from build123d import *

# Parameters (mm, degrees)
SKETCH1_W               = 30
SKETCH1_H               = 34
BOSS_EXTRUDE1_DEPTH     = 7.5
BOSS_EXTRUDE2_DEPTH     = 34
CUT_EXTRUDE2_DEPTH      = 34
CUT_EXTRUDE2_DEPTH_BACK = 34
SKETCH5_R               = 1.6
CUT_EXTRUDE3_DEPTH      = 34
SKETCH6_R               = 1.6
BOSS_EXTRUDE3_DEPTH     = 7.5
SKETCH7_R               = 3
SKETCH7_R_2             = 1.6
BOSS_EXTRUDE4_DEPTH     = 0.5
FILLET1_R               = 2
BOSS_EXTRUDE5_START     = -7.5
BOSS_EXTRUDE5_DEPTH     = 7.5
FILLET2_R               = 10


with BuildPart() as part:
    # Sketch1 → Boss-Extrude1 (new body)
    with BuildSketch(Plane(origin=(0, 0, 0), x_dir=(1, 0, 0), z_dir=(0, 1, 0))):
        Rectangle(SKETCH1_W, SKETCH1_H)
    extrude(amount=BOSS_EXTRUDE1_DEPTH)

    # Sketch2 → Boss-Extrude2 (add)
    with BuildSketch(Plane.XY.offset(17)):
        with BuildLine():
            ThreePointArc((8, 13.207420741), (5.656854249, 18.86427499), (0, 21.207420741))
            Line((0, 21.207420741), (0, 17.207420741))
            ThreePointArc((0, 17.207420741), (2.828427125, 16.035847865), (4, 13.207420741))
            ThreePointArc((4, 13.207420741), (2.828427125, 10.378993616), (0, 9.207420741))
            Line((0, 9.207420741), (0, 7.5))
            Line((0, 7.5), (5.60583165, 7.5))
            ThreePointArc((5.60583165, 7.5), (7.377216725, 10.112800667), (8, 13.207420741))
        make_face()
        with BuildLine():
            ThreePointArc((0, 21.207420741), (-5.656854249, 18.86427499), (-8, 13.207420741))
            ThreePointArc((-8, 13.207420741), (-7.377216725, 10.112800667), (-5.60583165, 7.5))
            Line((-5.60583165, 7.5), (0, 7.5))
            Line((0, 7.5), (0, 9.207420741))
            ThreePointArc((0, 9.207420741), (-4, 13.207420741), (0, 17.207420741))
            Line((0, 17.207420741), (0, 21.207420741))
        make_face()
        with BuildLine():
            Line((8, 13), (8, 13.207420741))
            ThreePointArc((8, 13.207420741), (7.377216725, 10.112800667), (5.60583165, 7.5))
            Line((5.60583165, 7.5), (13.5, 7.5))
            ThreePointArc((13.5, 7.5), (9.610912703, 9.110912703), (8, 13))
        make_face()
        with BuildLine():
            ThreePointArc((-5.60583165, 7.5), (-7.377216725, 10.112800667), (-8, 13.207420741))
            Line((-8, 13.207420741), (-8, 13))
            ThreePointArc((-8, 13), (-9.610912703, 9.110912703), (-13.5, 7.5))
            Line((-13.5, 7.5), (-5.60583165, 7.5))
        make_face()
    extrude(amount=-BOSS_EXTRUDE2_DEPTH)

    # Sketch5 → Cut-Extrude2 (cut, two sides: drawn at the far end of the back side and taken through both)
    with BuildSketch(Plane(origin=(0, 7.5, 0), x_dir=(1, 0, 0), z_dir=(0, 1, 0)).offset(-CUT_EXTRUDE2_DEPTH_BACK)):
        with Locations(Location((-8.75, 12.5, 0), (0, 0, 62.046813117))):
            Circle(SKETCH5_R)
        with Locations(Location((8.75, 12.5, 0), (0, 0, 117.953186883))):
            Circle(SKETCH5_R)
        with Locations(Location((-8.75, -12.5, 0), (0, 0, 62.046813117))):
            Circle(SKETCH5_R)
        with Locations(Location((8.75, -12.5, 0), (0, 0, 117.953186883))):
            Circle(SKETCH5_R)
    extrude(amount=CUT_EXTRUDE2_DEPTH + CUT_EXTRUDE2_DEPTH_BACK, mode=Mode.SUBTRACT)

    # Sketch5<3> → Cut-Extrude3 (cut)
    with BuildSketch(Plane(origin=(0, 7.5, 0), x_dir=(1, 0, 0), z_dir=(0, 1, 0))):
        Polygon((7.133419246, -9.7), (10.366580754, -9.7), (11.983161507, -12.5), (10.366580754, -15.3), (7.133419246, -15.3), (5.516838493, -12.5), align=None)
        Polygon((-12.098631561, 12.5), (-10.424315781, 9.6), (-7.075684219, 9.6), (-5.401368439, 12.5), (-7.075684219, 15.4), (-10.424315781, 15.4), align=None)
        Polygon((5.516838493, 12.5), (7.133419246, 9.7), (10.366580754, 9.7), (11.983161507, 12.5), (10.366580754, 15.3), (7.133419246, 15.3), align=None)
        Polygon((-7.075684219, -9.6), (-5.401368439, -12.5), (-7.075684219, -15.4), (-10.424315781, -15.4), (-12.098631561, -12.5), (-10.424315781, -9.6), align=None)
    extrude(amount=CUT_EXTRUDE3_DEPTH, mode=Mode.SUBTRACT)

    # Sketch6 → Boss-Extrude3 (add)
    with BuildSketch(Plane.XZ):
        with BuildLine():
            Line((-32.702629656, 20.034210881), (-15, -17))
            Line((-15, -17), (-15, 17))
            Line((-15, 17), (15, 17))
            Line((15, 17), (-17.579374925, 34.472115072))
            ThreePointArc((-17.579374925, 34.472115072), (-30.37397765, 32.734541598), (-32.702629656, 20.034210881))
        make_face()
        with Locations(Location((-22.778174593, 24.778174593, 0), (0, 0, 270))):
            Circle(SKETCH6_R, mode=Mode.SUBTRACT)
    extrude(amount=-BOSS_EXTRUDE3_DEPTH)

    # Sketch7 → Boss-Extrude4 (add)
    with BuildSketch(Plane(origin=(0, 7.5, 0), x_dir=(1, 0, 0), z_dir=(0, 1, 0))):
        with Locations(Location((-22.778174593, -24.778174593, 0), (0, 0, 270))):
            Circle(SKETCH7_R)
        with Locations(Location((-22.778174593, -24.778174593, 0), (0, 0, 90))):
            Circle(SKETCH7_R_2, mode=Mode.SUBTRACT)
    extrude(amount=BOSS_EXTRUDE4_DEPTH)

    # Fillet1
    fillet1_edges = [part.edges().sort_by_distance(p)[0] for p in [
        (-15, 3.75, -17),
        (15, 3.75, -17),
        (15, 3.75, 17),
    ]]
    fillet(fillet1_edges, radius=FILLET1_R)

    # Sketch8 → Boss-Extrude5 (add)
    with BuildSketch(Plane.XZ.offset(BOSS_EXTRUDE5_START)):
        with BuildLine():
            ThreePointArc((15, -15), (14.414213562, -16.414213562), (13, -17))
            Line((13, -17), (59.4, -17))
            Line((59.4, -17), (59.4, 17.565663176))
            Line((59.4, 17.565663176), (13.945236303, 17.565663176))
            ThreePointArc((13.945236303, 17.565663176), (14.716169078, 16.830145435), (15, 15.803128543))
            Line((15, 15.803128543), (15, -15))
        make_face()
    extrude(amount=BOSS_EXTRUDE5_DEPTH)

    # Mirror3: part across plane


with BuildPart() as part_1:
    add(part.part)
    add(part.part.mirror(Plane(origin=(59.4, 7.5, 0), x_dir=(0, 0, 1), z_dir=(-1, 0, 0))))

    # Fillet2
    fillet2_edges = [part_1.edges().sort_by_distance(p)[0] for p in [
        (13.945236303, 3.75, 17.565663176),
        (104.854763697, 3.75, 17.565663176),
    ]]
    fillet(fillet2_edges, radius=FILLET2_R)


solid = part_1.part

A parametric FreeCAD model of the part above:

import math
import FreeCAD as App
import Part
import Sketcher

V = App.Vector
Q = App.Units.Quantity


def edges_at(feature, points):
    """Names of the edges that pass closest to the given points."""
    edges = feature.Shape.Edges
    near = lambda p: min(range(len(edges)), key=lambda i: edges[i].distToShape(Part.Vertex(*p))[0])
    return sorted({f"Edge{near(p) + 1}" for p in points})


def add_polygon(sketch, points):
    """Adds a closed chain of lines whose ends are joined by coincident constraints."""
    first, n = sketch.GeometryCount, len(points)
    for a, b in zip(points, points[1:] + points[:1]):
        sketch.addGeometry(Part.LineSegment(App.Vector(*a, 0), App.Vector(*b, 0)), False)
    for i in range(n):
        sketch.addConstraint(Sketcher.Constraint("Coincident", first + i, 2, first + (i + 1) % n, 1))

doc = App.newDocument("Part")
body = doc.addObject("PartDesign::Body", "Body")

# Sketch on XZ plane
sketch1 = body.newObject("Sketcher::SketchObject", "Sketch")
sketch1.AttachmentSupport = (doc.getObject("XZ_Plane"), [""])
sketch1.MapMode = "FlatFace"
add_polygon(sketch1, [(-15, -17), (-15, 17), (15, 17), (15, -17)])  # lines 0-3
sketch1.addConstraint([
    Sketcher.Constraint("Vertical", 0),
    Sketcher.Constraint("Horizontal", 1),
    Sketcher.Constraint("Vertical", 2),
    Sketcher.Constraint("Horizontal", 3),
    Sketcher.Constraint("Symmetric", 0, 2, 2, 2, -1, 1),
    Sketcher.Constraint("DistanceX", 1, 1, 1, 2, Q("30 mm")),
    Sketcher.Constraint("DistanceY", 0, 1, 0, 2, Q("34 mm")),
])
pad1 = body.newObject("PartDesign::Pad", "Pad")
pad1.Profile = sketch1
pad1.Length = 7.5
pad1.Reversed = True

# Sketch on XY plane
sketch2 = body.newObject("Sketcher::SketchObject", "Sketch001")
sketch2.AttachmentSupport = (doc.getObject("XY_Plane"), [""])
sketch2.MapMode = "FlatFace"
sketch2.AttachmentOffset = App.Placement(V(0, 0, 17), App.Rotation())
sketch2.addGeometry([
    Part.ArcOfCircle(Part.Circle(V(0, 13.21, 0), V(0, 0, 1), 8), math.radians(0), math.radians(90)),  # 0
    Part.ArcOfCircle(Part.Circle(V(0, 13.21, 0), V(0, 0, 1), 8), math.radians(90), math.radians(180)),  # 1
    Part.LineSegment(V(-8, 13.21, 0), V(-8, 13, 0)),  # 2
    Part.ArcOfCircle(Part.Circle(V(-13.5, 13, 0), V(0, 0, 1), 5.5), math.radians(-90), math.radians(0)),  # 3
    Part.LineSegment(V(-13.5, 7.5, 0), V(13.5, 7.5, 0)),  # 4
    Part.ArcOfCircle(Part.Circle(V(13.5, 13, 0), V(0, 0, 1), 5.5), math.radians(180), math.radians(270)),  # 5
    Part.LineSegment(V(8, 13, 0), V(8, 13.21, 0)),  # 6
    Part.ArcOfCircle(Part.Circle(V(0, 13.21, 0), V(0, 0, 1), 4), math.radians(0), math.radians(90)),  # 7
    Part.ArcOfCircle(Part.Circle(V(0, 13.21, 0), V(0, 0, 1), 4), math.radians(-90), math.radians(0)),  # 8
    Part.ArcOfCircle(Part.Circle(V(0, 13.21, 0), V(0, 0, 1), 4), math.radians(90), math.radians(270)),  # 9
], False)
sketch2.addConstraint([
    Sketcher.Constraint("Tangent", 0, 2, 1, 1),
    Sketcher.Constraint("Tangent", 1, 2, 2, 1),
    Sketcher.Constraint("Tangent", 2, 2, 3, 2),
    Sketcher.Constraint("Tangent", 3, 1, 4, 1),
    Sketcher.Constraint("Tangent", 4, 2, 5, 2),
    Sketcher.Constraint("Tangent", 5, 1, 6, 1),
    Sketcher.Constraint("Tangent", 6, 2, 0, 1),
    Sketcher.Constraint("Tangent", 7, 1, 8, 2),
    Sketcher.Constraint("Tangent", 8, 1, 9, 2),
    Sketcher.Constraint("Tangent", 9, 1, 7, 2),
    Sketcher.Constraint("Vertical", 2),
    Sketcher.Constraint("Horizontal", 4),
    Sketcher.Constraint("Vertical", 6),
    Sketcher.Constraint("Coincident", 7, 3, 0, 3),
    Sketcher.Constraint("Equal", 0, 1),
    Sketcher.Constraint("Equal", 3, 5),
    Sketcher.Constraint("PointOnObject", 0, 3, -2),
    Sketcher.Constraint("PointOnObject", 0, 2, -2),
    Sketcher.Constraint("PointOnObject", 8, 1, -2),
    Sketcher.Constraint("PointOnObject", 9, 1, -2),
    Sketcher.Constraint("Horizontal", 6, 2, 7, 1),
    Sketcher.Constraint("Radius", 0, Q("8 mm")),
    Sketcher.Constraint("Radius", 7, Q("4 mm")),
    Sketcher.Constraint("Radius", 3, Q("5.5 mm")),
    Sketcher.Constraint("DistanceY", -1, 1, 3, 3, Q("13 mm")),
    Sketcher.Constraint("DistanceY", 2, 2, 2, 1, Q("0.207421 mm")),
])
pad2 = body.newObject("PartDesign::Pad", "Pad001")
pad2.Profile = sketch2
pad2.Length = 34
pad2.Reversed = True

# Sketch on XZ plane
sketch3 = body.newObject("Sketcher::SketchObject", "Sketch002")
sketch3.AttachmentSupport = (doc.getObject("XZ_Plane"), [""])
sketch3.MapMode = "FlatFace"
sketch3.AttachmentOffset = App.Placement(V(0, 0, -7.5), App.Rotation())
sketch3.addGeometry([
    Part.Circle(V(-8.8, -12.5, 0), V(0, 0, 1), 1.6),
    Part.Circle(V(8.8, -12.5, 0), V(0, 0, 1), 1.6),
    Part.Circle(V(-8.8, 12.5, 0), V(0, 0, 1), 1.6),
    Part.Circle(V(8.8, 12.5, 0), V(0, 0, 1), 1.6),
], False)
sketch3.addConstraint([
    Sketcher.Constraint("Equal", 0, 1),
    Sketcher.Constraint("Equal", 1, 2),
    Sketcher.Constraint("Equal", 2, 3),
    Sketcher.Constraint("Symmetric", 1, 3, 2, 3, -1, 1),
    Sketcher.Constraint("Symmetric", 0, 3, 3, 3, -1, 1),
    Sketcher.Constraint("Symmetric", 0, 3, 1, 3, -2),
    Sketcher.Constraint("Diameter", 0, Q("3.2 mm")),
    Sketcher.Constraint("DistanceY", 0, 3, 2, 3, Q("25 mm")),
    Sketcher.Constraint("DistanceX", 0, 3, 1, 3, Q("17.5 mm")),
])
pocket1 = body.newObject("PartDesign::Pocket", "Pocket")
pocket1.Profile = sketch3
pocket1.Type = "ThroughAll"
pocket1.Midplane = True

# Sketch on XZ plane
sketch4 = body.newObject("Sketcher::SketchObject", "Sketch003")
sketch4.AttachmentSupport = (doc.getObject("XZ_Plane"), [""])
sketch4.MapMode = "FlatFace"
sketch4.AttachmentOffset = App.Placement(V(0, 0, -7.5), App.Rotation())
add_polygon(sketch4, [(10.4, 9.7), (7.1, 9.7), (5.5, 12.5), (7.1, 15.3), (10.4, 15.3), (12, 12.5)])  # lines 0-5
add_polygon(sketch4, [(-12.1, -12.5), (-10.4, -9.6), (-7.1, -9.6), (-5.4, -12.5), (-7.1, -15.4), (-10.4, -15.4)])  # lines 6-11
add_polygon(sketch4, [(5.5, -12.5), (7.1, -9.7), (10.4, -9.7), (12, -12.5), (10.4, -15.3), (7.1, -15.3)])  # lines 12-17
add_polygon(sketch4, [(-5.4, 12.5), (-7.1, 9.6), (-10.4, 9.6), (-12.1, 12.5), (-10.4, 15.4), (-7.1, 15.4)])  # lines 18-23
sketch4.addConstraint([
    Sketcher.Constraint("Horizontal", 0),
    Sketcher.Constraint("Horizontal", 3),
    Sketcher.Constraint("Horizontal", 7),
    Sketcher.Constraint("Horizontal", 10),
    Sketcher.Constraint("Horizontal", 13),
    Sketcher.Constraint("Horizontal", 16),
    Sketcher.Constraint("Horizontal", 19),
    Sketcher.Constraint("Horizontal", 22),
    Sketcher.Constraint("Symmetric", 0, 2, 12, 2, -1),
    Sketcher.Constraint("Symmetric", 4, 2, 14, 2, -1),
    Sketcher.Constraint("Symmetric", 3, 2, 15, 2, -1),
    Sketcher.Constraint("Symmetric", 1, 2, 17, 2, -1),
    Sketcher.Constraint("Symmetric", 7, 2, 18, 2, -1),
    Sketcher.Constraint("Symmetric", 11, 2, 20, 2, -1),
    Sketcher.Constraint("Symmetric", 10, 2, 21, 2, -1),
    Sketcher.Constraint("Symmetric", 8, 2, 23, 2, -1),
    Sketcher.Constraint("Parallel", 1, 4),
    Sketcher.Constraint("Parallel", 2, 5),
    Sketcher.Constraint("Parallel", 5, 6),
    Sketcher.Constraint("Parallel", 4, 8),
    Sketcher.Constraint("Parallel", 6, 9),
    Sketcher.Constraint("Parallel", 8, 11),
    Sketcher.Constraint("Parallel", 9, 12),
    Sketcher.Constraint("Parallel", 11, 14),
    Sketcher.Constraint("Parallel", 14, 17),
    Sketcher.Constraint("Parallel", 17, 20),
    Sketcher.Constraint("Parallel", 20, 23),
    Sketcher.Constraint("Horizontal", 1, 2, 4, 2),
    Sketcher.Constraint("Horizontal", 8, 2, 11, 2),
    Sketcher.Constraint("Horizontal", 11, 2, 14, 2),
    Sketcher.Constraint("Vertical", 0, 2, 2, 2),
    Sketcher.Constraint("Vertical", 7, 2, 9, 2),
    Sketcher.Constraint("Angle", 1, Q("120 deg")),
    Sketcher.Constraint("DistanceY", 8, 2, 1, 2, Q("25 mm")),
    Sketcher.Constraint("DistanceY", -1, 1, 0, 2, Q("9.7 mm")),
    Sketcher.Constraint("DistanceY", 6, 2, -1, 1, Q("9.6 mm")),
    Sketcher.Constraint("DistanceX", 0, 2, 0, 1, Q("3.233162 mm")),
    Sketcher.Constraint("DistanceX", 7, 1, 7, 2, Q("3.348632 mm")),
    Sketcher.Constraint("DistanceX", -1, 1, 0, 2, Q("7.133419 mm")),
    Sketcher.Constraint("DistanceX", 8, 2, -1, 1, Q("5.401368 mm")),
])
pocket2 = body.newObject("PartDesign::Pocket", "Pocket001")
pocket2.Profile = sketch4
pocket2.Length = 34

# Sketch on XZ plane
sketch5 = body.newObject("Sketcher::SketchObject", "Sketch004")
sketch5.AttachmentSupport = (doc.getObject("XZ_Plane"), [""])
sketch5.MapMode = "FlatFace"
sketch5.addGeometry([
    Part.LineSegment(V(-32.7, 20, 0), V(-15, -17, 0)),  # 0
    Part.LineSegment(V(-15, -17, 0), V(-15, 17, 0)),  # 1
    Part.LineSegment(V(-15, 17, 0), V(15, 17, 0)),  # 2
    Part.LineSegment(V(15, 17, 0), V(-17.6, 34.5, 0)),  # 3
    Part.ArcOfCircle(Part.Circle(V(-22.8, 24.8, 0), V(0, 0, 1), 11), math.radians(62), math.radians(206)),  # 4
    Part.Circle(V(-22.8, 24.8, 0), V(0, 0, 1), 1.6),  # 5
], False)
sketch5.addConstraint([
    Sketcher.Constraint("Coincident", 0, 2, 1, 1),
    Sketcher.Constraint("Coincident", 1, 2, 2, 1),
    Sketcher.Constraint("Coincident", 2, 2, 3, 1),
    Sketcher.Constraint("Tangent", 3, 2, 4, 1),
    Sketcher.Constraint("Tangent", 4, 2, 0, 1),
    Sketcher.Constraint("Vertical", 1),
    Sketcher.Constraint("Horizontal", 2),
    Sketcher.Constraint("Coincident", 5, 3, 4, 3),
    Sketcher.Constraint("Symmetric", 0, 2, 2, 2, -1, 1),
    Sketcher.Constraint("Radius", 4, Q("11 mm")),
    Sketcher.Constraint("Diameter", 5, Q("3.2 mm")),
    Sketcher.Constraint("DistanceX", 2, 1, 2, 2, Q("30 mm")),
    Sketcher.Constraint("DistanceY", 1, 1, 1, 2, Q("34 mm")),
    Sketcher.Constraint("DistanceX", 4, 3, 3, 2, Q("5.1988 mm")),
    Sketcher.Constraint("DistanceX", 4, 2, -1, 1, Q("32.70263 mm")),
])
pad3 = body.newObject("PartDesign::Pad", "Pad002")
pad3.Profile = sketch5
pad3.Length = 7.5
pad3.Reversed = True

# Sketch on XZ plane
sketch6 = body.newObject("Sketcher::SketchObject", "Sketch005")
sketch6.AttachmentSupport = (doc.getObject("XZ_Plane"), [""])
sketch6.MapMode = "FlatFace"
sketch6.AttachmentOffset = App.Placement(V(0, 0, -7.5), App.Rotation())
sketch6.addGeometry([
    Part.Circle(V(-22.8, 24.8, 0), V(0, 0, 1), 3),
    Part.Circle(V(-22.8, 24.8, 0), V(0, 0, 1), 1.6),
], False)
sketch6.addConstraint([
    Sketcher.Constraint("Coincident", 1, 3, 0, 3),
    Sketcher.Constraint("Diameter", 0, Q("6 mm")),
    Sketcher.Constraint("Diameter", 1, Q("3.2 mm")),
    Sketcher.Constraint("DistanceX", 0, 3, -1, 1, Q("22.778175 mm")),
    Sketcher.Constraint("DistanceY", -1, 1, 0, 3, Q("24.778175 mm")),
])
pad4 = body.newObject("PartDesign::Pad", "Pad003")
pad4.Profile = sketch6
pad4.Length = 0.5
pad4.Reversed = True
doc.recompute()

fillet = body.newObject("PartDesign::Fillet", "Fillet")
fillet.Base = (pad4, edges_at(pad4, [(-15, 3.75, -17), (15, 3.75, -17), (15, 3.75, 17)]))
fillet.Radius = 2

# Sketch on XZ plane
sketch7 = body.newObject("Sketcher::SketchObject", "Sketch006")
sketch7.AttachmentSupport = (doc.getObject("XZ_Plane"), [""])
sketch7.MapMode = "FlatFace"
sketch7.AttachmentOffset = App.Placement(V(0, 0, -7.5), App.Rotation())
sketch7.addGeometry([
    Part.ArcOfCircle(Part.Circle(V(13, -15, 0), V(0, 0, 1), 2), math.radians(-90), math.radians(0)),  # 0
    Part.LineSegment(V(13, -17, 0), V(59.4, -17, 0)),  # 1
    Part.LineSegment(V(59.4, -17, 0), V(59.4, 17.6, 0)),  # 2
    Part.LineSegment(V(59.4, 17.6, 0), V(13.9, 17.6, 0)),  # 3
    Part.ArcOfCircle(Part.Circle(V(13, 15.8, 0), V(0, 0, 1), 2), math.radians(0), math.radians(62)),  # 4
    Part.LineSegment(V(15, 15.8, 0), V(15, -15, 0)),  # 5
], False)
sketch7.addConstraint([
    Sketcher.Constraint("Tangent", 0, 1, 1, 1),
    Sketcher.Constraint("Coincident", 1, 2, 2, 1),
    Sketcher.Constraint("Coincident", 2, 2, 3, 1),
    Sketcher.Constraint("Coincident", 3, 2, 4, 2),
    Sketcher.Constraint("Tangent", 4, 1, 5, 1),
    Sketcher.Constraint("Tangent", 5, 2, 0, 2),
    Sketcher.Constraint("Horizontal", 1),
    Sketcher.Constraint("Vertical", 2),
    Sketcher.Constraint("Horizontal", 3),
    Sketcher.Constraint("Vertical", 5),
    Sketcher.Constraint("Equal", 0, 4),
    Sketcher.Constraint("Radius", 0, Q("2 mm")),
    Sketcher.Constraint("DistanceX", 1, 1, 1, 2, Q("46.4 mm")),
    Sketcher.Constraint("DistanceX", -1, 1, 0, 3, Q("13 mm")),
    Sketcher.Constraint("DistanceY", 0, 3, -1, 1, Q("15 mm")),
    Sketcher.Constraint("DistanceY", 5, 2, 5, 1, Q("30.803129 mm")),
    Sketcher.Constraint("DistanceX", 3, 2, 3, 1, Q("45.454764 mm")),
])
pad5 = body.newObject("PartDesign::Pad", "Pad004")
pad5.Profile = sketch7
pad5.Length = 7.5
body2 = doc.addObject("PartDesign::Body", "Body001")
doc.recompute()

body2.BaseFeature = body
doc.recompute()

mirroring = doc.addObject("Part::Mirroring", "Mirroring")
mirroring.Source = body
mirroring.Base = V(59.4, 7.5, 0)
mirroring.Normal = V(-1, 0, 0)
body3 = doc.addObject("PartDesign::Body", "Body002")
body3.BaseFeature = mirroring
boolean = body2.newObject("PartDesign::Boolean", "Boolean")
boolean.Type = "Fuse"
boolean.addObjects([body3])
doc.recompute()

fillet2 = body2.newObject("PartDesign::Fillet", "Fillet001")
fillet2.Base = (boolean, edges_at(boolean, [(13.945, 3.75, 17.566), (104.855, 3.75, 17.566)]))
fillet2.Radius = 10
mirroring.Visibility = False

doc.recompute()
